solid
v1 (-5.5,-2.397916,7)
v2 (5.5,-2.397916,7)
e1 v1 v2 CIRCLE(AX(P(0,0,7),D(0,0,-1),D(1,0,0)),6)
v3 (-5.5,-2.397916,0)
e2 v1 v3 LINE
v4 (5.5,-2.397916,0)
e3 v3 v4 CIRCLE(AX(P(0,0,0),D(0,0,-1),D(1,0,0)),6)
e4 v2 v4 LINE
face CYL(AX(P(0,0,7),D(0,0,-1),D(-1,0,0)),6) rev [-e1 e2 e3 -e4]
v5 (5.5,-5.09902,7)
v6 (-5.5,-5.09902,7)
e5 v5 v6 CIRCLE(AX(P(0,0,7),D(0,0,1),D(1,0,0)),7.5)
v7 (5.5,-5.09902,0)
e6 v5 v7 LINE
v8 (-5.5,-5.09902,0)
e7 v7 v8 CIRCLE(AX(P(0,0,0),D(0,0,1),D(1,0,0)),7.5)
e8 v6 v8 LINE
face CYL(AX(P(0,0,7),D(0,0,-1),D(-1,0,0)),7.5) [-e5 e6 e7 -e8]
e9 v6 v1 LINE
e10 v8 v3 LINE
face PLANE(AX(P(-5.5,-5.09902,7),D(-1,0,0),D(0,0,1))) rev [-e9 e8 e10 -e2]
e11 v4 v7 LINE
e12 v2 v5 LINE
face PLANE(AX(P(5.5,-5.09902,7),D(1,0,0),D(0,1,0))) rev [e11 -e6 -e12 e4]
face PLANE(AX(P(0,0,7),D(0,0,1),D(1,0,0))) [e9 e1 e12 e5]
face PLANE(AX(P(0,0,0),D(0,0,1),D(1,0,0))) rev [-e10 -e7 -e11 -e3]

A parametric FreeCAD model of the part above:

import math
import FreeCAD as App
import Part
import Sketcher
from FreeCAD import Vector
Q = App.Units.Quantity

doc = App.newDocument("Part")
body = doc.addObject("PartDesign::Body", "Body")

# Sketch on XY plane
sketch1 = doc.addObject("Sketcher::SketchObject", "Sketch")
body.addObject(sketch1)
sketch1.AttachmentSupport = (doc.XY_Plane, [""])
sketch1.MapMode = "FlatFace"
sketch1.addGeometry([
    Part.LineSegment(Vector(5.5, -2.4, 0), Vector(5.5, -5.1, 0)),
    Part.ArcOfCircle(Part.Circle(Vector(0, 0, 0), Vector(0, 0, 1), 7.5), math.radians(-43), math.radians(223)),
    Part.LineSegment(Vector(-5.5, -5.1, 0), Vector(-5.5, -2.4, 0)),
    Part.ArcOfCircle(Part.Circle(Vector(0, 0, 0), Vector(0, 0, 1), 6), math.radians(-24), math.radians(204)),
], False)
sketch1.addConstraint([
    Sketcher.Constraint("Coincident", 0, 2, 1, 1),
    Sketcher.Constraint("Coincident", 1, 2, 2, 1),
    Sketcher.Constraint("Coincident", 2, 2, 3, 2),
    Sketcher.Constraint("Coincident", 3, 1, 0, 1),
    Sketcher.Constraint("Vertical", 0),
    Sketcher.Constraint("Vertical", 2),
    Sketcher.Constraint("Coincident", 1, 3, -1, 1),
    Sketcher.Constraint("Coincident", 3, 3, -1, 1),
    Sketcher.Constraint("Horizontal", 0, 2, 1, 2),
    Sketcher.Constraint("Radius", 3, Q("6 mm")),
    Sketcher.Constraint("Radius", 1, Q("7.5 mm")),
    Sketcher.Constraint("DistanceX", 1, 2, 0, 2, Q("11 mm")),
])
pad1 = doc.addObject("PartDesign::Pad", "Pad")
body.addObject(pad1)
pad1.Profile = sketch1
pad1.Length = 7

doc.recompute()
